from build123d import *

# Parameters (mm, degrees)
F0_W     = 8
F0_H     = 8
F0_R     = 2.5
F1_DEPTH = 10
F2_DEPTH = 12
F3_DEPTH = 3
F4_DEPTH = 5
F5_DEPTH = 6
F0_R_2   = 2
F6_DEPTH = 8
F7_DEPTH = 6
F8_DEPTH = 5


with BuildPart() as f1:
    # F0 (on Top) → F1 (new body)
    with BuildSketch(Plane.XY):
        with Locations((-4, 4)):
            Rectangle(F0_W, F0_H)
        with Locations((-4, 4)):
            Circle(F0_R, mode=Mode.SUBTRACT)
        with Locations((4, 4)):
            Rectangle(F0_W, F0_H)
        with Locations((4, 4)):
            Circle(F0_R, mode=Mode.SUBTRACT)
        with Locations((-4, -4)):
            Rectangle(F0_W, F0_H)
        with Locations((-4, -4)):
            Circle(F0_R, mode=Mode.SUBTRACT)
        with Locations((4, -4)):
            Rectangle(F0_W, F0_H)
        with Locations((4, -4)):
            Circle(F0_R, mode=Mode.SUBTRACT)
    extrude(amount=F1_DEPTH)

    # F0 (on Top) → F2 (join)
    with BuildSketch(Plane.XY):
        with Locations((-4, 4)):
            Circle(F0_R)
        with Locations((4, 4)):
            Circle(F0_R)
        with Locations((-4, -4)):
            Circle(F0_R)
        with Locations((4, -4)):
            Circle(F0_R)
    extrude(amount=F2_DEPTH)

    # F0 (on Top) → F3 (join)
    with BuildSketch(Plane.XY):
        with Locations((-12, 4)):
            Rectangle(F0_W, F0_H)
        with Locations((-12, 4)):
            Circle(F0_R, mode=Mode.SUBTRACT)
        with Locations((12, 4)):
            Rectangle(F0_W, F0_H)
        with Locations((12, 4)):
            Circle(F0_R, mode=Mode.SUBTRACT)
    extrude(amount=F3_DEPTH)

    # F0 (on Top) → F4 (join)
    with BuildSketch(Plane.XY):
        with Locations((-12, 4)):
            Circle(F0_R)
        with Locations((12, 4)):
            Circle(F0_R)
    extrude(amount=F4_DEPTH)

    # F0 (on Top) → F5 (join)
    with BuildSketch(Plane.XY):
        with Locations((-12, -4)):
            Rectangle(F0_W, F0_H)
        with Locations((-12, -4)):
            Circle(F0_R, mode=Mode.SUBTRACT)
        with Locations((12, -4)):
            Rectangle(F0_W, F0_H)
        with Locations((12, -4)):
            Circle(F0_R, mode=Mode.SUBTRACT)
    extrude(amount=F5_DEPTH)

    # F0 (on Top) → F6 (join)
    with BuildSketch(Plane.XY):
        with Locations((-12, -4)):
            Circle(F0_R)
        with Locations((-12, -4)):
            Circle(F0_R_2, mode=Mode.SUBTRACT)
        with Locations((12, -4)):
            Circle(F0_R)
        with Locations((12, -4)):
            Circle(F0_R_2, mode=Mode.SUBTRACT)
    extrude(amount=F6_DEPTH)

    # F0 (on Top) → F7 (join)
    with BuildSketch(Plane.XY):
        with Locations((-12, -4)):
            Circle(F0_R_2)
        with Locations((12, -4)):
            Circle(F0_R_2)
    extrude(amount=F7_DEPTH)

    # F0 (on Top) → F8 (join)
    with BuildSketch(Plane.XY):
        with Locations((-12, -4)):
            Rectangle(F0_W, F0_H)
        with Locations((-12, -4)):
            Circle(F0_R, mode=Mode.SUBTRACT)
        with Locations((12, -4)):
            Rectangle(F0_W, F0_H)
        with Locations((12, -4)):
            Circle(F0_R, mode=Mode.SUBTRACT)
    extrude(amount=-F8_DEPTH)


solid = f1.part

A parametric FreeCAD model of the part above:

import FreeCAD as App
import Part
import Sketcher
from FreeCAD import Vector


def add_polygon(sketch, points):
    """Adds a closed chain of lines whose ends are joined by coincident constraints."""
    first, n = sketch.GeometryCount, len(points)
    for a, b in zip(points, points[1:] + points[:1]):
        sketch.addGeometry(Part.LineSegment(App.Vector(*a, 0), App.Vector(*b, 0)), False)
    for i in range(n):
        sketch.addConstraint(Sketcher.Constraint("Coincident", first + i, 2, first + (i + 1) % n, 1))

doc = App.newDocument("Part")
params = doc.addObject("Spreadsheet::Sheet", "Params")
for row, (alias, value) in enumerate([
    ("sketch1_diameter", "5 mm"),
    ("sketch1_width", "16 mm"),
    ("pad1_length", "10 mm"),
    ("sketch2_diameter", "5 mm"),
    ("pad2_length", "12 mm"),
    ("sketch3_diameter", "5 mm"),
    ("sketch3_width", "8 mm"),
    ("pad3_length", "3 mm"),
    ("sketch4_diameter", "5 mm"),
    ("pad4_length", "5 mm"),
    ("sketch5_diameter", "5 mm"),
    ("sketch5_width", "8 mm"),
    ("pad5_length", "6 mm"),
    ("sketch6_diameter", "5 mm"),
    ("sketch6_diameter2", "4 mm"),
    ("pad6_length", "8 mm"),
    ("sketch7_diameter", "4 mm"),
    ("pad7_length", "6 mm"),
    ("sketch8_diameter", "5 mm"),
    ("sketch8_width", "8 mm"),
    ("pad8_length", "5 mm"),
], start=1):
    params.set(f"A{row}", alias)
    params.set(f"B{row}", "=" + value)
    params.setAlias(f"B{row}", alias)

body = doc.addObject("PartDesign::Body", "Body")

# Sketch on XY plane
sketch1 = body.newObject("Sketcher::SketchObject", "Sketch")
sketch1.AttachmentSupport = (doc.getObject("XY_Plane"), [""])
sketch1.MapMode = "FlatFace"
add_polygon(sketch1, [(-8, 8), (-8, -8), (8, -8), (8, 8)])  # lines 0-3
sketch1.addGeometry(Part.Circle(Vector(-4, -4, 0), Vector(0, 0, 1), 2.5), False)  # 4
sketch1.addGeometry(Part.Circle(Vector(4, -4, 0), Vector(0, 0, 1), 2.5), False)  # 5
sketch1.addGeometry(Part.Circle(Vector(-4, 4, 0), Vector(0, 0, 1), 2.5), False)  # 6
sketch1.addGeometry(Part.Circle(Vector(4, 4, 0), Vector(0, 0, 1), 2.5), False)  # 7
sketch1.addConstraint([
    Sketcher.Constraint("Vertical", 0),
    Sketcher.Constraint("Horizontal", 1),
    Sketcher.Constraint("Vertical", 2),
    Sketcher.Constraint("Horizontal", 3),
    Sketcher.Constraint("Equal", 4, 5),
    Sketcher.Constraint("Equal", 5, 6),
    Sketcher.Constraint("Equal", 6, 7),
    Sketcher.Constraint("Symmetric", 5, 3, 6, 3, -1, 1),
    Sketcher.Constraint("Symmetric", 4, 3, 7, 3, -1, 1),
    Sketcher.Constraint("Symmetric", 0, 2, 2, 2, -1, 1),
    Sketcher.Constraint("Symmetric", 4, 3, 5, 3, -2),
    Sketcher.Constraint("Equal", 3, 0),
    Sketcher.Constraint("Diameter", 4, 5.0),
    Sketcher.Constraint("DistanceX", 1, 1, 1, 2, 16.0),
    Sketcher.Constraint("DistanceX", 4, 3, -1, 1, 4.0),
    Sketcher.Constraint("DistanceY", 4, 3, -1, 1, 4.0),
])
sketch1.setExpression("Constraints[16]", "Params.sketch1_diameter")
sketch1.setExpression("Constraints[17]", "Params.sketch1_width")
pad1 = body.newObject("PartDesign::Pad", "Pad")
pad1.Profile = sketch1
pad1.setExpression("Length", "Params.pad1_length")

# Sketch on XY plane
sketch2 = body.newObject("Sketcher::SketchObject", "Sketch001")
sketch2.AttachmentSupport = (doc.getObject("XY_Plane"), [""])
sketch2.MapMode = "FlatFace"
sketch2.addGeometry([
    Part.Circle(Vector(-4, 4, 0), Vector(0, 0, 1), 2.5),
    Part.Circle(Vector(4, 4, 0), Vector(0, 0, 1), 2.5),
    Part.Circle(Vector(-4, -4, 0), Vector(0, 0, 1), 2.5),
    Part.Circle(Vector(4, -4, 0), Vector(0, 0, 1), 2.5),
], False)
sketch2.addConstraint([
    Sketcher.Constraint("Equal", 0, 1),
    Sketcher.Constraint("Equal", 1, 2),
    Sketcher.Constraint("Equal", 2, 3),
    Sketcher.Constraint("Symmetric", 1, 3, 2, 3, -1, 1),
    Sketcher.Constraint("Symmetric", 0, 3, 3, 3, -1, 1),
    Sketcher.Constraint("Symmetric", 0, 3, 1, 3, -2),
    Sketcher.Constraint("Diameter", 0, 5.0),
    Sketcher.Constraint("DistanceX", 0, 3, -1, 1, 4.0),
    Sketcher.Constraint("DistanceY", -1, 1, 0, 3, 4.0),
])
sketch2.setExpression("Constraints[6]", "Params.sketch2_diameter")
pad2 = body.newObject("PartDesign::Pad", "Pad001")
pad2.Profile = sketch2
pad2.setExpression("Length", "Params.pad2_length")

# Sketch on XY plane
sketch3 = body.newObject("Sketcher::SketchObject", "Sketch002")
sketch3.AttachmentSupport = (doc.getObject("XY_Plane"), [""])
sketch3.MapMode = "FlatFace"
add_polygon(sketch3, [(-16, 8), (-16, 0), (-8, 0), (-8, 8)])  # lines 0-3
sketch3.addGeometry(Part.Circle(Vector(-12, 4, 0), Vector(0, 0, 1), 2.5), False)  # 4
add_polygon(sketch3, [(8, 8), (8, 0), (16, 0), (16, 8)])  # lines 5-8
sketch3.addGeometry(Part.Circle(Vector(12, 4, 0), Vector(0, 0, 1), 2.5), False)  # 9
sketch3.addConstraint([
    Sketcher.Constraint("Vertical", 0),
    Sketcher.Constraint("Horizontal", 1),
    Sketcher.Constraint("Vertical", 2),
    Sketcher.Constraint("Horizontal", 3),
    Sketcher.Constraint("Vertical", 5),
    Sketcher.Constraint("Horizontal", 6),
    Sketcher.Constraint("Vertical", 7),
    Sketcher.Constraint("Horizontal", 8),
    Sketcher.Constraint("Equal", 4, 9),
    Sketcher.Constraint("Symmetric", 1, 2, 5, 2, -1, 1),
    Sketcher.Constraint("Symmetric", 4, 3, 9, 3, -2),
    Sketcher.Constraint("Symmetric", 0, 2, 6, 2, -2),
    Sketcher.Constraint("Horizontal", 3, 2, 7, 2),
    Sketcher.Constraint("Equal", 8, 0),
    Sketcher.Constraint("Diameter", 4, 5.0),
    Sketcher.Constraint("DistanceX", 1, 1, 1, 2, 8.0),
    Sketcher.Constraint("DistanceX", 4, 3, -1, 1, 12.0),
    Sketcher.Constraint("DistanceY", -1, 1, 4, 3, 4.0),
    Sketcher.Constraint("DistanceX", 0, 2, -1, 1, 16.0),
])
sketch3.setExpression("Constraints[22]", "Params.sketch3_diameter")
sketch3.setExpression("Constraints[23]", "Params.sketch3_width")
pad3 = body.newObject("PartDesign::Pad", "Pad002")
pad3.Profile = sketch3
pad3.setExpression("Length", "Params.pad3_length")

# Sketch on XY plane
sketch4 = body.newObject("Sketcher::SketchObject", "Sketch003")
sketch4.AttachmentSupport = (doc.getObject("XY_Plane"), [""])
sketch4.MapMode = "FlatFace"
sketch4.addGeometry([
    Part.Circle(Vector(-12, 4, 0), Vector(0, 0, 1), 2.5),
    Part.Circle(Vector(12, 4, 0), Vector(0, 0, 1), 2.5),
], False)
sketch4.addConstraint([
    Sketcher.Constraint("Equal", 0, 1),
    Sketcher.Constraint("Symmetric", 0, 3, 1, 3, -2),
    Sketcher.Constraint("Diameter", 0, 5.0),
    Sketcher.Constraint("DistanceX", 0, 3, -1, 1, 12.0),
    Sketcher.Constraint("DistanceY", -1, 1, 0, 3, 4.0),
])
sketch4.setExpression("Constraints[2]", "Params.sketch4_diameter")
pad4 = body.newObject("PartDesign::Pad", "Pad003")
pad4.Profile = sketch4
pad4.setExpression("Length", "Params.pad4_length")

# Sketch on XY plane
sketch5 = body.newObject("Sketcher::SketchObject", "Sketch004")
sketch5.AttachmentSupport = (doc.getObject("XY_Plane"), [""])
sketch5.MapMode = "FlatFace"
add_polygon(sketch5, [(-16, 0), (-16, -8), (-8, -8), (-8, 0)])  # lines 0-3
sketch5.addGeometry(Part.Circle(Vector(-12, -4, 0), Vector(0, 0, 1), 2.5), False)  # 4
add_polygon(sketch5, [(8, 0), (8, -8), (16, -8), (16, 0)])  # lines 5-8
sketch5.addGeometry(Part.Circle(Vector(12, -4, 0), Vector(0, 0, 1), 2.5), False)  # 9
sketch5.addConstraint([
    Sketcher.Constraint("Vertical", 0),
    Sketcher.Constraint("Horizontal", 1),
    Sketcher.Constraint("Vertical", 2),
    Sketcher.Constraint("Horizontal", 3),
    Sketcher.Constraint("Vertical", 5),
    Sketcher.Constraint("Horizontal", 6),
    Sketcher.Constraint("Vertical", 7),
    Sketcher.Constraint("Horizontal", 8),
    Sketcher.Constraint("Equal", 4, 9),
    Sketcher.Constraint("Symmetric", 3, 2, 7, 2, -1, 1),
    Sketcher.Constraint("Symmetric", 4, 3, 9, 3, -2),
    Sketcher.Constraint("Symmetric", 1, 2, 5, 2, -2),
    Sketcher.Constraint("PointOnObject", 2, 2, -1),
    Sketcher.Constraint("Equal", 8, 0),
    Sketcher.Constraint("Diameter", 4, 5.0),
    Sketcher.Constraint("DistanceX", 1, 1, 1, 2, 8.0),
    Sketcher.Constraint("DistanceX", 4, 3, -1, 1, 12.0),
    Sketcher.Constraint("DistanceY", 4, 3, -1, 1, 4.0),
    Sketcher.Constraint("DistanceX", 0, 2, -1, 1, 16.0),
])
sketch5.setExpression("Constraints[22]", "Params.sketch5_diameter")
sketch5.setExpression("Constraints[23]", "Params.sketch5_width")
pad5 = body.newObject("PartDesign::Pad", "Pad004")
pad5.Profile = sketch5
pad5.setExpression("Length", "Params.pad5_length")

# Sketch on XY plane
sketch6 = body.newObject("Sketcher::SketchObject", "Sketch005")
sketch6.AttachmentSupport = (doc.getObject("XY_Plane"), [""])
sketch6.MapMode = "FlatFace"
sketch6.addGeometry([
    Part.Circle(Vector(-12, -4, 0), Vector(0, 0, 1), 2.5),
    Part.Circle(Vector(-12, -4, 0), Vector(0, 0, 1), 2),
    Part.Circle(Vector(12, -4, 0), Vector(0, 0, 1), 2.5),
    Part.Circle(Vector(12, -4, 0), Vector(0, 0, 1), 2),
], False)
sketch6.addConstraint([
    Sketcher.Constraint("Coincident", 1, 3, 0, 3),
    Sketcher.Constraint("Coincident", 3, 3, 2, 3),
    Sketcher.Constraint("Equal", 0, 2),
    Sketcher.Constraint("Equal", 1, 3),
    Sketcher.Constraint("Symmetric", 0, 3, 2, 3, -2),
    Sketcher.Constraint("Diameter", 0, 5.0),
    Sketcher.Constraint("Diameter", 1, 4.0),
    Sketcher.Constraint("DistanceX", 0, 3, -1, 1, 12.0),
    Sketcher.Constraint("DistanceY", 0, 3, -1, 1, 4.0),
])
sketch6.setExpression("Constraints[5]", "Params.sketch6_diameter")
sketch6.setExpression("Constraints[6]", "Params.sketch6_diameter2")
pad6 = body.newObject("PartDesign::Pad", "Pad005")
pad6.Profile = sketch6
pad6.setExpression("Length", "Params.pad6_length")

# Sketch on XY plane
sketch7 = body.newObject("Sketcher::SketchObject", "Sketch006")
sketch7.AttachmentSupport = (doc.getObject("XY_Plane"), [""])
sketch7.MapMode = "FlatFace"
sketch7.addGeometry([
    Part.Circle(Vector(-12, -4, 0), Vector(0, 0, 1), 2),
    Part.Circle(Vector(12, -4, 0), Vector(0, 0, 1), 2),
], False)
sketch7.addConstraint([
    Sketcher.Constraint("Equal", 0, 1),
    Sketcher.Constraint("Symmetric", 0, 3, 1, 3, -2),
    Sketcher.Constraint("Diameter", 0, 4.0),
    Sketcher.Constraint("DistanceX", 0, 3, -1, 1, 12.0),
    Sketcher.Constraint("DistanceY", 0, 3, -1, 1, 4.0),
])
sketch7.setExpression("Constraints[2]", "Params.sketch7_diameter")
pad7 = body.newObject("PartDesign::Pad", "Pad006")
pad7.Profile = sketch7
pad7.setExpression("Length", "Params.pad7_length")

# Sketch on XY plane
sketch8 = body.newObject("Sketcher::SketchObject", "Sketch007")
sketch8.AttachmentSupport = (doc.getObject("XY_Plane"), [""])
sketch8.MapMode = "FlatFace"
add_polygon(sketch8, [(-16, 0), (-16, -8), (-8, -8), (-8, 0)])  # lines 0-3
sketch8.addGeometry(Part.Circle(Vector(-12, -4, 0), Vector(0, 0, 1), 2.5), False)  # 4
add_polygon(sketch8, [(8, 0), (8, -8), (16, -8), (16, 0)])  # lines 5-8
sketch8.addGeometry(Part.Circle(Vector(12, -4, 0), Vector(0, 0, 1), 2.5), False)  # 9
sketch8.addConstraint([
    Sketcher.Constraint("Vertical", 0),
    Sketcher.Constraint("Horizontal", 1),
    Sketcher.Constraint("Vertical", 2),
    Sketcher.Constraint("Horizontal", 3),
    Sketcher.Constraint("Vertical", 5),
    Sketcher.Constraint("Horizontal", 6),
    Sketcher.Constraint("Vertical", 7),
    Sketcher.Constraint("Horizontal", 8),
    Sketcher.Constraint("Equal", 4, 9),
    Sketcher.Constraint("Symmetric", 3, 2, 7, 2, -1, 1),
    Sketcher.Constraint("Symmetric", 4, 3, 9, 3, -2),
    Sketcher.Constraint("Symmetric", 1, 2, 5, 2, -2),
    Sketcher.Constraint("PointOnObject", 2, 2, -1),
    Sketcher.Constraint("Equal", 8, 0),
    Sketcher.Constraint("Diameter", 4, 5.0),
    Sketcher.Constraint("DistanceX", 1, 1, 1, 2, 8.0),
    Sketcher.Constraint("DistanceX", 4, 3, -1, 1, 12.0),
    Sketcher.Constraint("DistanceY", 4, 3, -1, 1, 4.0),
    Sketcher.Constraint("DistanceX", 0, 2, -1, 1, 16.0),
])
sketch8.setExpression("Constraints[22]", "Params.sketch8_diameter")
sketch8.setExpression("Constraints[23]", "Params.sketch8_width")
pad8 = body.newObject("PartDesign::Pad", "Pad007")
pad8.Profile = sketch8
pad8.setExpression("Length", "Params.pad8_length")
pad8.Reversed = True

doc.recompute()
